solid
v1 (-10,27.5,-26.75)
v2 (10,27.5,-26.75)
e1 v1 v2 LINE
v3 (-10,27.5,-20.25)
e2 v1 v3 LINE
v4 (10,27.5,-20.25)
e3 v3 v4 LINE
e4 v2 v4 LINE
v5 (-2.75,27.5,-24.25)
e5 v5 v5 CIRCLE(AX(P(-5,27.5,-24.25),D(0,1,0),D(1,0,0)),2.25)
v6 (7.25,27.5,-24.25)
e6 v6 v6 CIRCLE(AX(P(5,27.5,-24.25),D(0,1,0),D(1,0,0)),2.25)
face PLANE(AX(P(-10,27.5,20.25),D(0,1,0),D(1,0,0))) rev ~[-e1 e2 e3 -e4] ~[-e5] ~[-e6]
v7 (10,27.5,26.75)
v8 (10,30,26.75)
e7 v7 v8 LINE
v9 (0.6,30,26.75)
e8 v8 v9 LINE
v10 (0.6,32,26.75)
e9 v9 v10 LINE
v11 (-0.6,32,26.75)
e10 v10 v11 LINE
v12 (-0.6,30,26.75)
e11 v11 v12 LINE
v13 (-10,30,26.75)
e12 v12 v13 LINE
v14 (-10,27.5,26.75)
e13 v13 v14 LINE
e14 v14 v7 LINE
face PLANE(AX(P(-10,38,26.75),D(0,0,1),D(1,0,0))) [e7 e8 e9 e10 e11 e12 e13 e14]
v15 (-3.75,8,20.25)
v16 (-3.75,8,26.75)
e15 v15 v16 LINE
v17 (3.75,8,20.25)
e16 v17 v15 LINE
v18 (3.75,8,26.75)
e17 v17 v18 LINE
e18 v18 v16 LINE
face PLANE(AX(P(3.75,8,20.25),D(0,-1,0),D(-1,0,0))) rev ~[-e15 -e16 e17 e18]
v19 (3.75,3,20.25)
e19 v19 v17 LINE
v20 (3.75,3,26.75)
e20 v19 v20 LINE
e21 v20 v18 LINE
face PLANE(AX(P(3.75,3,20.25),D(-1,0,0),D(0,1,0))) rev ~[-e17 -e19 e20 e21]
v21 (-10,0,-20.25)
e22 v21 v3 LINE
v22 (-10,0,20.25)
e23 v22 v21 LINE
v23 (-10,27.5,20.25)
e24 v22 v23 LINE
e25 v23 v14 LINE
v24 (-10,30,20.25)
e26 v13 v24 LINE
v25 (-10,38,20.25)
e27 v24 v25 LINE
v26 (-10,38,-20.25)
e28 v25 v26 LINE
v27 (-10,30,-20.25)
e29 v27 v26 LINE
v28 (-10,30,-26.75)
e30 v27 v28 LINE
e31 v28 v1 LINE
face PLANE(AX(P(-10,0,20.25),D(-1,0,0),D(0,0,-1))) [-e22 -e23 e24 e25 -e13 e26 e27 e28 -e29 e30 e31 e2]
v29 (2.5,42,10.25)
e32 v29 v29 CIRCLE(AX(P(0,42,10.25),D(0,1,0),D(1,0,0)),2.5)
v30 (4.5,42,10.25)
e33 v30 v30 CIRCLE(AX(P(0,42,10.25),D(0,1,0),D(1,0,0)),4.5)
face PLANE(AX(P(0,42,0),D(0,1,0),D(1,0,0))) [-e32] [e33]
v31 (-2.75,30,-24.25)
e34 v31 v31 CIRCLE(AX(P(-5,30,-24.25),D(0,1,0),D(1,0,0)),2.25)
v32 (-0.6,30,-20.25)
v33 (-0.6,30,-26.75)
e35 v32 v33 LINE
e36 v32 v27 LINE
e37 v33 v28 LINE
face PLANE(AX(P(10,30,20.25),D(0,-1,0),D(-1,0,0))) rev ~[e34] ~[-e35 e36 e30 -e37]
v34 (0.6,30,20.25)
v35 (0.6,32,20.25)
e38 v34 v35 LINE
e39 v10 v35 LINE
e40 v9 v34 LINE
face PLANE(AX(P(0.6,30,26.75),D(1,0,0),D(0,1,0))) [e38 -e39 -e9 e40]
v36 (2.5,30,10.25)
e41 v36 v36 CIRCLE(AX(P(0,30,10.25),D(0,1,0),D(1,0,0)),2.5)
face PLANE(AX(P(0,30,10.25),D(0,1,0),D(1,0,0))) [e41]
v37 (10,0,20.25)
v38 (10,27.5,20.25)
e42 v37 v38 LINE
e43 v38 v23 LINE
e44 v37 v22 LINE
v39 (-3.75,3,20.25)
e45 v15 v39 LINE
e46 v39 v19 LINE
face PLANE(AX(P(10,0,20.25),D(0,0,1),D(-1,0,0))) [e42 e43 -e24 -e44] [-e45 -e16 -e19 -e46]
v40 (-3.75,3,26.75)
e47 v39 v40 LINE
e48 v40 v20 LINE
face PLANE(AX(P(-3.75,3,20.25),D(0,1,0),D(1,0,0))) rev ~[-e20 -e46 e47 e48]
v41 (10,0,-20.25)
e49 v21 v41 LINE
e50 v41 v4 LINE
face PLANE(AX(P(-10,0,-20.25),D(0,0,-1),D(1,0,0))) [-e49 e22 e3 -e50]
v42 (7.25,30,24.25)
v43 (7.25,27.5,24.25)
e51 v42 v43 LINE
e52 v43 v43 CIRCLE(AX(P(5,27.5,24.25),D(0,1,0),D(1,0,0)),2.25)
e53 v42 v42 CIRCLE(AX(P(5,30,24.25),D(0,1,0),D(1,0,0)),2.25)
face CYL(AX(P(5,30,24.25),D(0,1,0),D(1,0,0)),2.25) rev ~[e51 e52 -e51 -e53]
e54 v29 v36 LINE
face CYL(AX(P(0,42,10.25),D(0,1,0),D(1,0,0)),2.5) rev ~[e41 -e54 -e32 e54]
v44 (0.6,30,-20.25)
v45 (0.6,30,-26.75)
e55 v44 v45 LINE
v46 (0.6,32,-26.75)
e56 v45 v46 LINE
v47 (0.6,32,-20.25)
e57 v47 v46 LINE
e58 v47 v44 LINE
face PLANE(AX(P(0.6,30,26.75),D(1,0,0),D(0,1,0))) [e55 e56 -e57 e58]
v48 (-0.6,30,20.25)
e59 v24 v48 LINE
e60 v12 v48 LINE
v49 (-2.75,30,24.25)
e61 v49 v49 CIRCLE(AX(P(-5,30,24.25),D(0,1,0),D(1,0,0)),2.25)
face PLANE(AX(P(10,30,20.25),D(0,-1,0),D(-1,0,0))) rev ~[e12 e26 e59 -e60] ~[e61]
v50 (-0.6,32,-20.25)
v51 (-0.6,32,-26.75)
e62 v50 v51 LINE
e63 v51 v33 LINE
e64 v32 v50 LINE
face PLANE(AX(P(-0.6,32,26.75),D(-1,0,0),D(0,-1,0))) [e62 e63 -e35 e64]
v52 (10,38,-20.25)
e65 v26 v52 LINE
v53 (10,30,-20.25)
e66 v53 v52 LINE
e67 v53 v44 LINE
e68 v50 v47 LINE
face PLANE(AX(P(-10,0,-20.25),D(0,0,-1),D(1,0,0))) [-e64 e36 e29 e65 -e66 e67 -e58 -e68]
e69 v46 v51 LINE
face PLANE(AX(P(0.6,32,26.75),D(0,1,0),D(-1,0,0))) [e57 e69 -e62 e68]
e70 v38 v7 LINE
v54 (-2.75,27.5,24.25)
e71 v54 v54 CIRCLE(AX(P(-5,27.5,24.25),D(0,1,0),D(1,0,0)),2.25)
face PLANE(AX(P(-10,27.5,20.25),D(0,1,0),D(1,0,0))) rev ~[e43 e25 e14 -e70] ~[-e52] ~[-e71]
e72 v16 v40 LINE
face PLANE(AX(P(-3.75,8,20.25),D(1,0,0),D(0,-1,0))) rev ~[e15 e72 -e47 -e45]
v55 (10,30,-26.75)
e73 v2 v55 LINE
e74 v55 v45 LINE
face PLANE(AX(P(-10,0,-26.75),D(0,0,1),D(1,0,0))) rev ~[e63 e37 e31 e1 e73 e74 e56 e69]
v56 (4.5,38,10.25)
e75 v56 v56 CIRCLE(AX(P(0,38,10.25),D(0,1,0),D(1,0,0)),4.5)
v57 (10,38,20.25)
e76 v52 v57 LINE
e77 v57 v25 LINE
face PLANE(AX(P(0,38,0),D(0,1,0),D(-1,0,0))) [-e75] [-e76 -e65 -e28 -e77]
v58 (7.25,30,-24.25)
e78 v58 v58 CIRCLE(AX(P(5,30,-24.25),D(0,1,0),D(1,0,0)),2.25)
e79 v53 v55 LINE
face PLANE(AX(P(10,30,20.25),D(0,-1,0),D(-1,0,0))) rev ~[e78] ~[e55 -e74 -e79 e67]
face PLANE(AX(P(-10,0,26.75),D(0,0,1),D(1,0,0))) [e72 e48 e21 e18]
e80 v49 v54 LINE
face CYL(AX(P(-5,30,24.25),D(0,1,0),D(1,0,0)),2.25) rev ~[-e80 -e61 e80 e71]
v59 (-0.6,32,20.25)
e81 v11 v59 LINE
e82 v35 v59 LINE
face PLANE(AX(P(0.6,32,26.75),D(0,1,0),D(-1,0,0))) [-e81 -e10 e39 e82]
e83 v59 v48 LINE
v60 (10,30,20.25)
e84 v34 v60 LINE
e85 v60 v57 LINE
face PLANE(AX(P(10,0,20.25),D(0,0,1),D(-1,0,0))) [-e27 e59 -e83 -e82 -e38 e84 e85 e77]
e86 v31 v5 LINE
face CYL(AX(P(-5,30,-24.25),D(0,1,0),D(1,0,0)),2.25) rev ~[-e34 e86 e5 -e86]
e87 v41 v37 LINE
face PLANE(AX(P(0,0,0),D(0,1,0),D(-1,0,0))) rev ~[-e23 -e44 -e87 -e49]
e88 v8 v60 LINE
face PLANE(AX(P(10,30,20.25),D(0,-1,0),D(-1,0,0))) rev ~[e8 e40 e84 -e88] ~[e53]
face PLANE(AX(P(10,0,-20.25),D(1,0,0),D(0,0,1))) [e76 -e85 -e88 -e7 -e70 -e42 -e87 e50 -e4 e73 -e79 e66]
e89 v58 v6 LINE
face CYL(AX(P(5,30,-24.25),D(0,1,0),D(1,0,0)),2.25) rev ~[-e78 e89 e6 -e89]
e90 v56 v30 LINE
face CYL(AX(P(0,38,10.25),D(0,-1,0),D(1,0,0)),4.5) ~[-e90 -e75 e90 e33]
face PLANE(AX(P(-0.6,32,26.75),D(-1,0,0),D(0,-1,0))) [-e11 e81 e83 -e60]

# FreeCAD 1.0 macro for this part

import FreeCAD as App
import Part
import Sketcher
from FreeCAD import Vector
Q = App.Units.Quantity


def add_polygon(sketch, points):
    """Adds a closed chain of lines whose ends are joined by coincident constraints."""
    first, n = sketch.GeometryCount, len(points)
    for a, b in zip(points, points[1:] + points[:1]):
        sketch.addGeometry(Part.LineSegment(App.Vector(*a, 0), App.Vector(*b, 0)), False)
    for i in range(n):
        sketch.addConstraint(Sketcher.Constraint("Coincident", first + i, 2, first + (i + 1) % n, 1))

doc = App.newDocument("Part")
body = doc.addObject("PartDesign::Body", "Body")

# Sketch on XZ plane
sketch1 = doc.addObject("Sketcher::SketchObject", "Sketch")
body.addObject(sketch1)
sketch1.AttachmentSupport = (doc.XZ_Plane, [""])
sketch1.MapMode = "FlatFace"
add_polygon(sketch1, [(-10, 20), (10, 20), (10, -20), (-10, -20)])  # lines 0-3
sketch1.addConstraint([
    Sketcher.Constraint("Horizontal", 0),
    Sketcher.Constraint("Vertical", 1),
    Sketcher.Constraint("Horizontal", 2),
    Sketcher.Constraint("Vertical", 3),
    Sketcher.Constraint("Symmetric", 0, 2, 2, 2, -1, 1),
    Sketcher.Constraint("DistanceX", 0, 1, 0, 2, Q("20 mm")),
    Sketcher.Constraint("DistanceY", 1, 2, 1, 1, Q("40.5 mm")),
])
pad1 = doc.addObject("PartDesign::Pad", "Pad")
body.addObject(pad1)
pad1.Profile = sketch1
pad1.Length = 38
pad1.Reversed = True

# Sketch on XY plane
sketch2 = doc.addObject("Sketcher::SketchObject", "Sketch001")
body.addObject(sketch2)
sketch2.AttachmentSupport = (doc.XY_Plane, [""])
sketch2.MapMode = "FlatFace"
sketch2.AttachmentOffset = App.Placement(Vector(0, 0, 20.25), App.Rotation())
add_polygon(sketch2, [(-10, 30), (-10, 27.5), (10, 27.5), (10, 30)])  # lines 0-3
sketch2.addConstraint([
    Sketcher.Constraint("Vertical", 0),
    Sketcher.Constraint("Horizontal", 1),
    Sketcher.Constraint("Vertical", 2),
    Sketcher.Constraint("Horizontal", 3),
    Sketcher.Constraint("DistanceY", 0, 2, 0, 1, Q("2.5 mm")),
    Sketcher.Constraint("DistanceX", 1, 1, 1, 2, Q("20 mm")),
    Sketcher.Constraint("DistanceX", 0, 2, -1, 1, Q("10 mm")),
    Sketcher.Constraint("DistanceY", -1, 1, 2, 2, Q("30 mm")),
])
pad2 = doc.addObject("PartDesign::Pad", "Pad001")
body.addObject(pad2)
pad2.Profile = sketch2
pad2.Type = "TwoLengths"
pad2.Length = 6.5
pad2.Length2 = 47

# Sketch on XZ plane
sketch3 = doc.addObject("Sketcher::SketchObject", "Sketch002")
body.addObject(sketch3)
sketch3.AttachmentSupport = (doc.XZ_Plane, [""])
sketch3.MapMode = "FlatFace"
sketch3.AttachmentOffset = App.Placement(Vector(0, 0, -30), App.Rotation())
sketch3.addGeometry([
    Part.Circle(Vector(-5, 24.2, 0), Vector(0, 0, 1), 2.2),
    Part.Circle(Vector(5, -24.2, 0), Vector(0, 0, 1), 2.2),
    Part.Circle(Vector(5, 24.2, 0), Vector(0, 0, 1), 2.2),
    Part.Circle(Vector(-5, -24.2, 0), Vector(0, 0, 1), 2.2),
], False)
sketch3.addConstraint([
    Sketcher.Constraint("Equal", 0, 1),
    Sketcher.Constraint("Equal", 1, 2),
    Sketcher.Constraint("Equal", 2, 3),
    Sketcher.Constraint("Symmetric", 0, 3, 1, 3, -1, 1),
    Sketcher.Constraint("Symmetric", 2, 3, 3, 3, -1, 1),
    Sketcher.Constraint("Symmetric", 0, 3, 2, 3, -2),
    Sketcher.Constraint("Diameter", 0, Q("4.5 mm")),
    Sketcher.Constraint("DistanceX", 0, 3, -1, 1, Q("5 mm")),
    Sketcher.Constraint("DistanceY", 1, 3, 0, 3, Q("48.5 mm")),
])
pocket1 = doc.addObject("PartDesign::Pocket", "Pocket")
body.addObject(pocket1)
pocket1.Profile = sketch3
pocket1.Type = "UpToFirst"
pocket1.Reversed = True

# Sketch on XY plane
sketch4 = doc.addObject("Sketcher::SketchObject", "Sketch003")
body.addObject(sketch4)
sketch4.AttachmentSupport = (doc.XY_Plane, [""])
sketch4.MapMode = "FlatFace"
sketch4.AttachmentOffset = App.Placement(Vector(0, 0, 20.25), App.Rotation())
add_polygon(sketch4, [(-4, 8), (-4, 3), (4, 3), (4, 8)])  # lines 0-3
sketch4.addConstraint([
    Sketcher.Constraint("Vertical", 0),
    Sketcher.Constraint("Horizontal", 1),
    Sketcher.Constraint("Vertical", 2),
    Sketcher.Constraint("Horizontal", 3),
    Sketcher.Constraint("DistanceY", 0, 2, 0, 1, Q("5 mm")),
    Sketcher.Constraint("DistanceX", 1, 1, 1, 2, Q("7.5 mm")),
    Sketcher.Constraint("DistanceY", -1, 1, 0, 2, Q("3 mm")),
    Sketcher.Constraint("DistanceX", 0, 2, -1, 1, Q("3.75 mm")),
])
pad3 = doc.addObject("PartDesign::Pad", "Pad002")
body.addObject(pad3)
pad3.Profile = sketch4
pad3.Length = 6.5

# Sketch on XY plane
sketch5 = doc.addObject("Sketcher::SketchObject", "Sketch004")
body.addObject(sketch5)
sketch5.AttachmentSupport = (doc.XY_Plane, [""])
sketch5.MapMode = "FlatFace"
sketch5.AttachmentOffset = App.Placement(Vector(0, 0, 26.75), App.Rotation())
add_polygon(sketch5, [(-0.6, 32), (-0.6, 30), (0.6, 30), (0.6, 32)])  # lines 0-3
sketch5.addConstraint([
    Sketcher.Constraint("Vertical", 0),
    Sketcher.Constraint("Horizontal", 1),
    Sketcher.Constraint("Vertical", 2),
    Sketcher.Constraint("Horizontal", 3),
    Sketcher.Constraint("DistanceY", 0, 2, 0, 1, Q("2 mm")),
    Sketcher.Constraint("DistanceX", 1, 1, 1, 2, Q("1.2 mm")),
    Sketcher.Constraint("DistanceY", -1, 1, 0, 2, Q("30 mm")),
    Sketcher.Constraint("DistanceX", 0, 2, -1, 1, Q("0.6 mm")),
])
pad4 = doc.addObject("PartDesign::Pad", "Pad003")
body.addObject(pad4)
pad4.Profile = sketch5
pad4.Length = 53.5
pad4.Reversed = True

# Sketch on XZ plane
sketch6 = doc.addObject("Sketcher::SketchObject", "Sketch005")
body.addObject(sketch6)
sketch6.AttachmentSupport = (doc.XZ_Plane, [""])
sketch6.MapMode = "FlatFace"
sketch6.AttachmentOffset = App.Placement(Vector(0, 0, -38), App.Rotation())
sketch6.addGeometry(Part.Circle(Vector(0, 10.2, 0), Vector(0, 0, 1), 4.5), False)
sketch6.addConstraint([
    Sketcher.Constraint("PointOnObject", 0, 3, -2),
    Sketcher.Constraint("Diameter", 0, Q("9 mm")),
    Sketcher.Constraint("DistanceY", -1, 1, 0, 3, Q("10.25 mm")),
])
pad5 = doc.addObject("PartDesign::Pad", "Pad004")
body.addObject(pad5)
pad5.Profile = sketch6
pad5.Length = 4
pad5.Reversed = True

# Sketch on XZ plane
sketch7 = doc.addObject("Sketcher::SketchObject", "Sketch006")
body.addObject(sketch7)
sketch7.AttachmentSupport = (doc.XZ_Plane, [""])
sketch7.MapMode = "FlatFace"
sketch7.AttachmentOffset = App.Placement(Vector(0, 0, -42), App.Rotation())
sketch7.addGeometry(Part.Circle(Vector(0, 10.2, 0), Vector(0, 0, 1), 2.5), False)
sketch7.addConstraint([
    Sketcher.Constraint("PointOnObject", 0, 3, -2),
    Sketcher.Constraint("Diameter", 0, Q("5 mm")),
    Sketcher.Constraint("DistanceY", -1, 1, 0, 3, Q("10.25 mm")),
])
pocket2 = doc.addObject("PartDesign::Pocket", "Pocket001")
body.addObject(pocket2)
pocket2.Profile = sketch7
pocket2.Length = 12
pocket2.Reversed = True

doc.recompute()
